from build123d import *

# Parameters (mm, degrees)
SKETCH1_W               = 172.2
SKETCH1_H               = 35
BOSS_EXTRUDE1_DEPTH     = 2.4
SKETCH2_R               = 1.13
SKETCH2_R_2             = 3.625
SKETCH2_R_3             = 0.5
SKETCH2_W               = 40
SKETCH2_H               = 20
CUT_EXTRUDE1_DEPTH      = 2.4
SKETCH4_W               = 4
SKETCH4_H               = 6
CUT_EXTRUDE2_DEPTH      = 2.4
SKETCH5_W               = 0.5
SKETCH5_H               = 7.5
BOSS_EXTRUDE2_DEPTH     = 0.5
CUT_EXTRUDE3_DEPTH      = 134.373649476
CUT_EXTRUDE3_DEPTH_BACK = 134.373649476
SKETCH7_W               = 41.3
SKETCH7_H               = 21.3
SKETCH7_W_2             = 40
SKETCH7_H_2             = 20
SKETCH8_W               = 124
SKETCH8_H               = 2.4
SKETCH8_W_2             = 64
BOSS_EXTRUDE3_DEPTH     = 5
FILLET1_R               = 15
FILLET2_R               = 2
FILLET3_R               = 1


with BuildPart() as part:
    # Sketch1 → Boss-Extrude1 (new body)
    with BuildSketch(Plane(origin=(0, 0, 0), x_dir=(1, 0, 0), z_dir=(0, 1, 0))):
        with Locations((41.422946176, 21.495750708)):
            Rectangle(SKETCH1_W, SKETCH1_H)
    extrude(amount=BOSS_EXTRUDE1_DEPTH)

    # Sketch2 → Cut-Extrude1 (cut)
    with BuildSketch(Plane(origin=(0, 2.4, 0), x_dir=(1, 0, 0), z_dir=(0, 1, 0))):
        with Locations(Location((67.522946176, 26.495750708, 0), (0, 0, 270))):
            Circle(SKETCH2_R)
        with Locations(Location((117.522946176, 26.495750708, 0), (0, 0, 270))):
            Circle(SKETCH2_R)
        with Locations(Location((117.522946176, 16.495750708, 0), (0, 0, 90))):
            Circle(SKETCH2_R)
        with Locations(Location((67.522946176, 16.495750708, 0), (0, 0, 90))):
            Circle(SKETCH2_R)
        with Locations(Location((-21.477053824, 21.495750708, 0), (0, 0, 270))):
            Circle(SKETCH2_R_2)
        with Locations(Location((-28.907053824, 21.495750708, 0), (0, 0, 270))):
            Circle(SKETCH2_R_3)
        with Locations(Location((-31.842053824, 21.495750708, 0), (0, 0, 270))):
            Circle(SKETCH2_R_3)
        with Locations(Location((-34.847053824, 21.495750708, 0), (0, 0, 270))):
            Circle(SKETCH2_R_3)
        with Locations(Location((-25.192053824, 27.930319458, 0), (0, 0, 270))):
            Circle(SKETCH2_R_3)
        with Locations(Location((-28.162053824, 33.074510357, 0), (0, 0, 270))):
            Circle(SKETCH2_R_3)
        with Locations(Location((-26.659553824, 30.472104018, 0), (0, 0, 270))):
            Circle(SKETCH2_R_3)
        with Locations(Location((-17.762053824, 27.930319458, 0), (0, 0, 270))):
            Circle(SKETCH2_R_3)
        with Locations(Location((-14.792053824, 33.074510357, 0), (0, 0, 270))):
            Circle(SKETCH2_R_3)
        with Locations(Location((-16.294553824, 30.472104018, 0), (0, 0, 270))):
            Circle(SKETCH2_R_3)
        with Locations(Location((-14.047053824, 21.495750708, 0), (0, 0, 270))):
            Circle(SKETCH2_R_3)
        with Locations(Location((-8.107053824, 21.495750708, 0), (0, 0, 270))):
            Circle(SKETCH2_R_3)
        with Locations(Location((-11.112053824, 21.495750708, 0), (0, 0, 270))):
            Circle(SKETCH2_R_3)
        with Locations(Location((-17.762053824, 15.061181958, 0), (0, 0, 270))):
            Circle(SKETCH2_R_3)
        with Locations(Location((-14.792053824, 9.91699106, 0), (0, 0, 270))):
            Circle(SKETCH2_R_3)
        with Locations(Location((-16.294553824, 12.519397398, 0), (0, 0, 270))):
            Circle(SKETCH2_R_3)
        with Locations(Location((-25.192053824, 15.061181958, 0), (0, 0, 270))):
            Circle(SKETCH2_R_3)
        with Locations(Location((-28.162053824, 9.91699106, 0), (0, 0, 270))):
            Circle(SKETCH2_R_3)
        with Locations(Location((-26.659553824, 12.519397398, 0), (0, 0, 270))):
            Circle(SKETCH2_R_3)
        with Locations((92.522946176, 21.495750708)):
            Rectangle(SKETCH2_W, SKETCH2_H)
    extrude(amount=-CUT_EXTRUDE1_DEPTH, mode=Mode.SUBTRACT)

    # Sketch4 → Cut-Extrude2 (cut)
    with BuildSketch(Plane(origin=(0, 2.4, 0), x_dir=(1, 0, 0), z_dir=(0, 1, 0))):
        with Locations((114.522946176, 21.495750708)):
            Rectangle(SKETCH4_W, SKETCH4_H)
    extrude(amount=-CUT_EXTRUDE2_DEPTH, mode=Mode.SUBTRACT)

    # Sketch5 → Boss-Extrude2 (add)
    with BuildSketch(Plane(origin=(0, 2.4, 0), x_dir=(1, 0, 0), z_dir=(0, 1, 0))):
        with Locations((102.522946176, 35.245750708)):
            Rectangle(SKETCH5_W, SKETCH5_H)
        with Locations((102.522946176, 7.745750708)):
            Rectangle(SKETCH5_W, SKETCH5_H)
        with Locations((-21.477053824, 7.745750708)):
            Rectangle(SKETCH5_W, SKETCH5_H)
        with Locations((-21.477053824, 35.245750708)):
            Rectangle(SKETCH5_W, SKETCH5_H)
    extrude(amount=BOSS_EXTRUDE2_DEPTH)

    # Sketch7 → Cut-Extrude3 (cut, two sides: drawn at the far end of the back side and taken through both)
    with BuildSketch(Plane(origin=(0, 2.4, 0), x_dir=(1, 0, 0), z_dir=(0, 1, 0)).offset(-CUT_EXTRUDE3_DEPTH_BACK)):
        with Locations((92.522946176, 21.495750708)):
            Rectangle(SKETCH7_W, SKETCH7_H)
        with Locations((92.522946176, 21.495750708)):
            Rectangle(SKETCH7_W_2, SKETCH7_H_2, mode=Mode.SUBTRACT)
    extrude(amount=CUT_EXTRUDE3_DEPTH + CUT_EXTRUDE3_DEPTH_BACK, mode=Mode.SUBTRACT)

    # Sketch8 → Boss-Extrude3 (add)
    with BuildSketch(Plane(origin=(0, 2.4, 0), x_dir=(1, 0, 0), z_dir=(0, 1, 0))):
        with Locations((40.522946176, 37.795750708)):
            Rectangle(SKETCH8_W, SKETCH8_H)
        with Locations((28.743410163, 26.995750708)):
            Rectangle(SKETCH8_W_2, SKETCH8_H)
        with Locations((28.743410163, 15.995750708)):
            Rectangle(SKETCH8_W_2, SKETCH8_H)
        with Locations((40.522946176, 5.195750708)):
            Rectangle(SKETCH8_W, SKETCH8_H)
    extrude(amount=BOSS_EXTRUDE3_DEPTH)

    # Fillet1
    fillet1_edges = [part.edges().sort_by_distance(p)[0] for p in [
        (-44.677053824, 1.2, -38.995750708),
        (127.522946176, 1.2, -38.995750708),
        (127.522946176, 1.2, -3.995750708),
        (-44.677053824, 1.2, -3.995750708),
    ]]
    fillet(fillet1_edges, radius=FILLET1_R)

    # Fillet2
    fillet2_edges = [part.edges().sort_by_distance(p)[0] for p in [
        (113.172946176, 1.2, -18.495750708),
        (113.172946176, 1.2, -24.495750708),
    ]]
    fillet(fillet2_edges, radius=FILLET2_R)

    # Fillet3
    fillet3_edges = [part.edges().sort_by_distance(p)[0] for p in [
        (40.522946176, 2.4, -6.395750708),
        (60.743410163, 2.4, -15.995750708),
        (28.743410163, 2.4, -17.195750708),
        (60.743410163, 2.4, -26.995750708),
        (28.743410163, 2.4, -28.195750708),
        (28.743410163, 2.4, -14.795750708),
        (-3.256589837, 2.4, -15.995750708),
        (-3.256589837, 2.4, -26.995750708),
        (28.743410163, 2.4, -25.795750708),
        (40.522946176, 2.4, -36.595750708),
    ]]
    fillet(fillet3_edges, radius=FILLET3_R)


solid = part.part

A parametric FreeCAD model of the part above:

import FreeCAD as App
import Part
import Sketcher


def edges_at(feature, points):
    """Names of the edges that pass closest to the given points."""
    edges = feature.Shape.Edges
    near = lambda p: min(range(len(edges)), key=lambda i: edges[i].distToShape(Part.Vertex(*p))[0])
    return sorted({f"Edge{near(p) + 1}" for p in points})


def add_polygon(sketch, points):
    """Adds a closed chain of lines whose ends are joined by coincident constraints."""
    first, n = sketch.GeometryCount, len(points)
    for a, b in zip(points, points[1:] + points[:1]):
        sketch.addGeometry(Part.LineSegment(App.Vector(*a, 0), App.Vector(*b, 0)), False)
    for i in range(n):
        sketch.addConstraint(Sketcher.Constraint("Coincident", first + i, 2, first + (i + 1) % n, 1))

doc = App.newDocument("Part")
body = doc.addObject("PartDesign::Body", "Body")

# Sketch on XZ plane
sketch1 = doc.addObject("Sketcher::SketchObject", "Sketch")
body.addObject(sketch1)
sketch1.AttachmentSupport = (doc.XZ_Plane, [""])
sketch1.MapMode = "FlatFace"
add_polygon(sketch1, [(-44.677054, -38.995751), (-44.677054, -3.995751), (127.522946, -3.995751), (127.522946, -38.995751)])  # lines 0-3
sketch1.addConstraint([
    Sketcher.Constraint("Vertical", 0),
    Sketcher.Constraint("Horizontal", 1),
    Sketcher.Constraint("Vertical", 2),
    Sketcher.Constraint("Horizontal", 3),
    Sketcher.Constraint("DistanceY", 0, 1, 0, 2, 35.0),
    Sketcher.Constraint("DistanceX", 1, 1, 1, 2, 172.2),
    Sketcher.Constraint("DistanceY", 0, 2, -1, 1, 3.995751),
    Sketcher.Constraint("DistanceX", 0, 2, -1, 1, 44.677054),
])
pad1 = doc.addObject("PartDesign::Pad", "Pad")
body.addObject(pad1)
pad1.Profile = sketch1
pad1.Length = 2.4
pad1.Reversed = True

# Sketch on XZ plane
sketch2 = doc.addObject("Sketcher::SketchObject", "Sketch001")
body.addObject(sketch2)
sketch2.AttachmentSupport = (doc.XZ_Plane, [""])
sketch2.MapMode = "FlatFace"
sketch2.AttachmentOffset = App.Placement(App.Vector(0, 0, -2.4), App.Rotation())
sketch2.addGeometry(Part.Circle(App.Vector(67.522946, -26.495751, 0), App.Vector(0, 0, 1), 1.13), False)  # 0
sketch2.addGeometry(Part.Circle(App.Vector(117.522946, -26.495751, 0), App.Vector(0, 0, 1), 1.13), False)  # 1
sketch2.addGeometry(Part.Circle(App.Vector(117.522946, -16.495751, 0), App.Vector(0, 0, 1), 1.13), False)  # 2
sketch2.addGeometry(Part.Circle(App.Vector(67.522946, -16.495751, 0), App.Vector(0, 0, 1), 1.13), False)  # 3
sketch2.addGeometry(Part.Circle(App.Vector(-21.477054, -21.495751, 0), App.Vector(0, 0, 1), 3.625), False)  # 4
sketch2.addGeometry(Part.Circle(App.Vector(-28.907054, -21.495751, 0), App.Vector(0, 0, 1), 0.5), False)  # 5
sketch2.addGeometry(Part.Circle(App.Vector(-31.842054, -21.495751, 0), App.Vector(0, 0, 1), 0.5), False)  # 6
sketch2.addGeometry(Part.Circle(App.Vector(-34.847054, -21.495751, 0), App.Vector(0, 0, 1), 0.5), False)  # 7
sketch2.addGeometry(Part.Circle(App.Vector(-25.192054, -27.930319, 0), App.Vector(0, 0, 1), 0.5), False)  # 8
sketch2.addGeometry(Part.Circle(App.Vector(-28.162054, -33.07451, 0), App.Vector(0, 0, 1), 0.5), False)  # 9
sketch2.addGeometry(Part.Circle(App.Vector(-26.659554, -30.472104, 0), App.Vector(0, 0, 1), 0.5), False)  # 10
sketch2.addGeometry(Part.Circle(App.Vector(-17.762054, -27.930319, 0), App.Vector(0, 0, 1), 0.5), False)  # 11
sketch2.addGeometry(Part.Circle(App.Vector(-14.792054, -33.07451, 0), App.Vector(0, 0, 1), 0.5), False)  # 12
sketch2.addGeometry(Part.Circle(App.Vector(-16.294554, -30.472104, 0), App.Vector(0, 0, 1), 0.5), False)  # 13
sketch2.addGeometry(Part.Circle(App.Vector(-14.047054, -21.495751, 0), App.Vector(0, 0, 1), 0.5), False)  # 14
sketch2.addGeometry(Part.Circle(App.Vector(-8.107054, -21.495751, 0), App.Vector(0, 0, 1), 0.5), False)  # 15
sketch2.addGeometry(Part.Circle(App.Vector(-11.112054, -21.495751, 0), App.Vector(0, 0, 1), 0.5), False)  # 16
sketch2.addGeometry(Part.Circle(App.Vector(-17.762054, -15.061182, 0), App.Vector(0, 0, 1), 0.5), False)  # 17
sketch2.addGeometry(Part.Circle(App.Vector(-14.792054, -9.916991, 0), App.Vector(0, 0, 1), 0.5), False)  # 18
sketch2.addGeometry(Part.Circle(App.Vector(-16.294554, -12.519397, 0), App.Vector(0, 0, 1), 0.5), False)  # 19
sketch2.addGeometry(Part.Circle(App.Vector(-25.192054, -15.061182, 0), App.Vector(0, 0, 1), 0.5), False)  # 20
sketch2.addGeometry(Part.Circle(App.Vector(-28.162054, -9.916991, 0), App.Vector(0, 0, 1), 0.5), False)  # 21
sketch2.addGeometry(Part.Circle(App.Vector(-26.659554, -12.519397, 0), App.Vector(0, 0, 1), 0.5), False)  # 22
add_polygon(sketch2, [(72.522946, -31.495751), (72.522946, -11.495751), (112.522946, -11.495751), (112.522946, -31.495751)])  # lines 23-26
sketch2.addConstraint([
    Sketcher.Constraint("Vertical", 23),
    Sketcher.Constraint("Horizontal", 24),
    Sketcher.Constraint("Vertical", 25),
    Sketcher.Constraint("Horizontal", 26),
    Sketcher.Constraint("Equal", 0, 1),
    Sketcher.Constraint("Equal", 1, 2),
    Sketcher.Constraint("Equal", 2, 3),
    Sketcher.Constraint("Equal", 5, 6),
    Sketcher.Constraint("Equal", 6, 7),
    Sketcher.Constraint("Equal", 7, 8),
    Sketcher.Constraint("Equal", 8, 9),
    Sketcher.Constraint("Equal", 9, 10),
    Sketcher.Constraint("Equal", 10, 11),
    Sketcher.Constraint("Equal", 11, 12),
    Sketcher.Constraint("Equal", 12, 13),
    Sketcher.Constraint("Equal", 13, 14),
    Sketcher.Constraint("Equal", 14, 15),
    Sketcher.Constraint("Equal", 15, 16),
    Sketcher.Constraint("Equal", 16, 17),
    Sketcher.Constraint("Equal", 17, 18),
    Sketcher.Constraint("Equal", 18, 19),
    Sketcher.Constraint("Equal", 19, 20),
    Sketcher.Constraint("Equal", 20, 21),
    Sketcher.Constraint("Equal", 21, 22),
    Sketcher.Constraint("Horizontal", 0, 3, 1, 3),
    Sketcher.Constraint("Horizontal", 2, 3, 3, 3),
    Sketcher.Constraint("Horizontal", 4, 3, 5, 3),
    Sketcher.Constraint("Horizontal", 5, 3, 6, 3),
    Sketcher.Constraint("Horizontal", 6, 3, 7, 3),
    Sketcher.Constraint("Horizontal", 8, 3, 11, 3),
    Sketcher.Constraint("Horizontal", 9, 3, 12, 3),
    Sketcher.Constraint("Horizontal", 10, 3, 13, 3),
    Sketcher.Constraint("Horizontal", 7, 3, 14, 3),
    Sketcher.Constraint("Horizontal", 14, 3, 15, 3),
    Sketcher.Constraint("Horizontal", 15, 3, 16, 3),
    Sketcher.Constraint("Horizontal", 17, 3, 20, 3),
    Sketcher.Constraint("Horizontal", 18, 3, 21, 3),
    Sketcher.Constraint("Horizontal", 19, 3, 22, 3),
    Sketcher.Constraint("Vertical", 1, 3, 2, 3),
    Sketcher.Constraint("Vertical", 0, 3, 3, 3),
    Sketcher.Constraint("Vertical", 11, 3, 17, 3),
    Sketcher.Constraint("Vertical", 12, 3, 18, 3),
    Sketcher.Constraint("Vertical", 13, 3, 19, 3),
    Sketcher.Constraint("Vertical", 8, 3, 20, 3),
    Sketcher.Constraint("Vertical", 9, 3, 21, 3),
    Sketcher.Constraint("Vertical", 10, 3, 22, 3),
    Sketcher.Constraint("Diameter", 5, 1.0),
    Sketcher.Constraint("Diameter", 0, 2.26),
    Sketcher.Constraint("Diameter", 4, 7.25),
    Sketcher.Constraint("DistanceX", 24, 1, 24, 2, 40.0),
    Sketcher.Constraint("DistanceY", 23, 1, 23, 2, 20.0),
    Sketcher.Constraint("DistanceX", 0, 3, 1, 3, 50.0),
    Sketcher.Constraint("DistanceY", 1, 3, 2, 3, 10.0),
    Sketcher.Constraint("DistanceX", 4, 3, 0, 3, 89.0),
    Sketcher.Constraint("DistanceY", 0, 3, 4, 3, 5.0),
    Sketcher.Constraint("DistanceX", 3, 3, 23, 2, 5.0),
    Sketcher.Constraint("DistanceY", 3, 3, 23, 2, 5.0),
    Sketcher.Constraint("DistanceX", 9, 3, 11, 3, 10.4),
    Sketcher.Constraint("DistanceX", 8, 3, 12, 3, 10.4),
    Sketcher.Constraint("DistanceX", 5, 3, 4, 3, 7.43),
    Sketcher.Constraint("DistanceX", 7, 3, 5, 3, 5.94),
    Sketcher.Constraint("DistanceX", 6, 3, 8, 3, 6.65),
    Sketcher.Constraint("DistanceX", 9, 3, 8, 3, 2.97),
    Sketcher.Constraint("DistanceX", 4, 3, 14, 3, 7.43),
    Sketcher.Constraint("DistanceX", 14, 3, 15, 3, 5.94),
    Sketcher.Constraint("DistanceX", 11, 3, 16, 3, 6.65),
    Sketcher.Constraint("DistanceX", 6, 3, 5, 3, 2.935),
    Sketcher.Constraint("DistanceX", 10, 3, 13, 3, 10.365),
    Sketcher.Constraint("DistanceX", 10, 3, 8, 3, 1.4675),
    Sketcher.Constraint("DistanceY", 0, 3, -1, 1, 26.495751),
    Sketcher.Constraint("DistanceY", 8, 3, -1, 1, 27.930319),
    Sketcher.Constraint("DistanceY", 9, 3, -1, 1, 33.07451),
    Sketcher.Constraint("DistanceY", 17, 3, -1, 1, 15.061182),
    Sketcher.Constraint("DistanceY", 18, 3, -1, 1, 9.916991),
    Sketcher.Constraint("DistanceX", -1, 1, 0, 3, 67.522946),
    Sketcher.Constraint("DistanceY", 10, 3, -1, 1, 30.472104),
    Sketcher.Constraint("DistanceY", 19, 3, -1, 1, 12.519397),
])
pocket1 = doc.addObject("PartDesign::Pocket", "Pocket")
body.addObject(pocket1)
pocket1.Profile = sketch2
pocket1.Length = 2.4
pocket1.Reversed = True

# Sketch on XZ plane
sketch3 = doc.addObject("Sketcher::SketchObject", "Sketch002")
body.addObject(sketch3)
sketch3.AttachmentSupport = (doc.XZ_Plane, [""])
sketch3.MapMode = "FlatFace"
sketch3.AttachmentOffset = App.Placement(App.Vector(0, 0, -2.4), App.Rotation())
add_polygon(sketch3, [(112.522946, -24.495751), (112.522946, -18.495751), (116.522946, -18.495751), (116.522946, -24.495751)])  # lines 0-3
sketch3.addConstraint([
    Sketcher.Constraint("Vertical", 0),
    Sketcher.Constraint("Horizontal", 1),
    Sketcher.Constraint("Vertical", 2),
    Sketcher.Constraint("Horizontal", 3),
    Sketcher.Constraint("DistanceX", 1, 1, 1, 2, 4.0),
    Sketcher.Constraint("DistanceY", 0, 1, 0, 2, 6.0),
    Sketcher.Constraint("DistanceY", 0, 2, -1, 1, 18.495751),
    Sketcher.Constraint("DistanceX", -1, 1, 0, 2, 112.522946),
])
pocket2 = doc.addObject("PartDesign::Pocket", "Pocket001")
body.addObject(pocket2)
pocket2.Profile = sketch3
pocket2.Length = 2.4
pocket2.Reversed = True

# Sketch on XZ plane
sketch4 = doc.addObject("Sketcher::SketchObject", "Sketch003")
body.addObject(sketch4)
sketch4.AttachmentSupport = (doc.XZ_Plane, [""])
sketch4.MapMode = "FlatFace"
sketch4.AttachmentOffset = App.Placement(App.Vector(0, 0, -2.4), App.Rotation())
add_polygon(sketch4, [(102.272946, -38.995751), (102.272946, -31.495751), (102.772946, -31.495751), (102.772946, -38.995751)])  # lines 0-3
add_polygon(sketch4, [(102.272946, -11.495751), (102.272946, -3.995751), (102.772946, -3.995751), (102.772946, -11.495751)])  # lines 4-7
add_polygon(sketch4, [(-21.727054, -11.495751), (-21.727054, -3.995751), (-21.227054, -3.995751), (-21.227054, -11.495751)])  # lines 8-11
add_polygon(sketch4, [(-21.727054, -38.995751), (-21.727054, -31.495751), (-21.227054, -31.495751), (-21.227054, -38.995751)])  # lines 12-15
sketch4.addConstraint([
    Sketcher.Constraint("Vertical", 0),
    Sketcher.Constraint("Horizontal", 1),
    Sketcher.Constraint("Vertical", 2),
    Sketcher.Constraint("Horizontal", 3),
    Sketcher.Constraint("Vertical", 4),
    Sketcher.Constraint("Horizontal", 5),
    Sketcher.Constraint("Vertical", 6),
    Sketcher.Constraint("Horizontal", 7),
    Sketcher.Constraint("Vertical", 8),
    Sketcher.Constraint("Horizontal", 9),
    Sketcher.Constraint("Vertical", 10),
    Sketcher.Constraint("Horizontal", 11),
    Sketcher.Constraint("Vertical", 12),
    Sketcher.Constraint("Horizontal", 13),
    Sketcher.Constraint("Vertical", 14),
    Sketcher.Constraint("Horizontal", 15),
    Sketcher.Constraint("Horizontal", 5, 2, 8, 2),
    Sketcher.Constraint("Horizontal", 7, 2, 10, 2),
    Sketcher.Constraint("Horizontal", 1, 2, 12, 2),
    Sketcher.Constraint("Horizontal", 3, 2, 14, 2),
    Sketcher.Constraint("Vertical", 3, 2, 4, 2),
    Sketcher.Constraint("Vertical", 2, 2, 5, 2),
    Sketcher.Constraint("Vertical", 11, 2, 12, 2),
    Sketcher.Constraint("Vertical", 10, 2, 13, 2),
    Sketcher.Constraint("Equal", 7, 9),
    Sketcher.Constraint("Equal", 2, 4),
    Sketcher.Constraint("DistanceX", 1, 1, 1, 2, 0.5),
    Sketcher.Constraint("DistanceY", 0, 1, 0, 2, 7.5),
    Sketcher.Constraint("DistanceY", 3, 2, 4, 2, 35.0),
    Sketcher.Constraint("DistanceX", 8, 2, 4, 2, 124.0),
    Sketcher.Constraint("DistanceY", 0, 2, -1, 1, 31.495751),
    Sketcher.Constraint("DistanceX", -1, 1, 0, 2, 102.272946),
])
pad2 = doc.addObject("PartDesign::Pad", "Pad001")
body.addObject(pad2)
pad2.Profile = sketch4
pad2.Length = 0.5
pad2.Reversed = True

# Sketch on XZ plane
sketch5 = doc.addObject("Sketcher::SketchObject", "Sketch004")
body.addObject(sketch5)
sketch5.AttachmentSupport = (doc.XZ_Plane, [""])
sketch5.MapMode = "FlatFace"
sketch5.AttachmentOffset = App.Placement(App.Vector(0, 0, -2.4), App.Rotation())
add_polygon(sketch5, [(71.872946, -32.145751), (71.872946, -10.845751), (113.172946, -10.845751), (113.172946, -32.145751)])  # lines 0-3
add_polygon(sketch5, [(112.522946, -11.495751), (72.522946, -11.495751), (72.522946, -31.495751), (112.522946, -31.495751)])  # lines 4-7
sketch5.addConstraint([
    Sketcher.Constraint("Vertical", 0),
    Sketcher.Constraint("Horizontal", 1),
    Sketcher.Constraint("Vertical", 2),
    Sketcher.Constraint("Horizontal", 3),
    Sketcher.Constraint("Horizontal", 4),
    Sketcher.Constraint("Vertical", 5),
    Sketcher.Constraint("Horizontal", 6),
    Sketcher.Constraint("Vertical", 7),
    Sketcher.Constraint("DistanceX", 4, 2, 4, 1, 40.0),
    Sketcher.Constraint("DistanceY", 5, 2, 5, 1, 20.0),
    Sketcher.Constraint("DistanceX", 1, 1, 1, 2, 41.3),
    Sketcher.Constraint("DistanceY", 0, 1, 0, 2, 21.3),
    Sketcher.Constraint("DistanceX", 0, 2, 4, 2, 0.65),
    Sketcher.Constraint("DistanceY", 4, 2, 0, 2, 0.65),
    Sketcher.Constraint("DistanceY", 0, 2, -1, 1, 10.845751),
    Sketcher.Constraint("DistanceX", -1, 1, 0, 2, 71.872946),
])
pocket3 = doc.addObject("PartDesign::Pocket", "Pocket002")
body.addObject(pocket3)
pocket3.Profile = sketch5
pocket3.Type = "ThroughAll"
pocket3.Midplane = True

# Sketch on XZ plane
sketch6 = doc.addObject("Sketcher::SketchObject", "Sketch005")
body.addObject(sketch6)
sketch6.AttachmentSupport = (doc.XZ_Plane, [""])
sketch6.MapMode = "FlatFace"
sketch6.AttachmentOffset = App.Placement(App.Vector(0, 0, -2.4), App.Rotation())
add_polygon(sketch6, [(-21.477054, -38.995751), (-21.477054, -36.595751), (102.522946, -36.595751), (102.522946, -38.995751)])  # lines 0-3
add_polygon(sketch6, [(-3.25659, -28.195751), (-3.25659, -25.795751), (60.74341, -25.795751), (60.74341, -28.195751)])  # lines 4-7
add_polygon(sketch6, [(-3.25659, -17.195751), (-3.25659, -14.795751), (60.74341, -14.795751), (60.74341, -17.195751)])  # lines 8-11
add_polygon(sketch6, [(-21.477054, -6.395751), (-21.477054, -3.995751), (102.522946, -3.995751), (102.522946, -6.395751)])  # lines 12-15
sketch6.addConstraint([
    Sketcher.Constraint("Vertical", 0),
    Sketcher.Constraint("Horizontal", 1),
    Sketcher.Constraint("Vertical", 2),
    Sketcher.Constraint("Horizontal", 3),
    Sketcher.Constraint("Vertical", 4),
    Sketcher.Constraint("Horizontal", 5),
    Sketcher.Constraint("Vertical", 6),
    Sketcher.Constraint("Horizontal", 7),
    Sketcher.Constraint("Vertical", 8),
    Sketcher.Constraint("Horizontal", 9),
    Sketcher.Constraint("Vertical", 10),
    Sketcher.Constraint("Horizontal", 11),
    Sketcher.Constraint("Vertical", 12),
    Sketcher.Constraint("Horizontal", 13),
    Sketcher.Constraint("Vertical", 14),
    Sketcher.Constraint("Horizontal", 15),
    Sketcher.Constraint("Vertical", 7, 2, 8, 2),
    Sketcher.Constraint("Vertical", 6, 2, 9, 2),
    Sketcher.Constraint("Vertical", 3, 2, 12, 2),
    Sketcher.Constraint("Vertical", 2, 2, 13, 2),
    Sketcher.Constraint("Equal", 2, 4),
    Sketcher.Constraint("Equal", 6, 8),
    Sketcher.Constraint("Equal", 10, 12),
    Sketcher.Constraint("DistanceX", 1, 1, 1, 2, 124.0),
    Sketcher.Constraint("DistanceX", 5, 1, 5, 2, 64.0),
    Sketcher.Constraint("DistanceY", 0, 1, 0, 2, 2.4),
    Sketcher.Constraint("DistanceY", 4, 2, 8, 2, 11.0),
    Sketcher.Constraint("DistanceY", 2, 2, 13, 2, 35.0),
    Sketcher.Constraint("DistanceY", 0, 2, 4, 2, 10.8),
    Sketcher.Constraint("DistanceY", 0, 2, -1, 1, 36.595751),
    Sketcher.Constraint("DistanceX", 4, 2, -1, 1, 3.25659),
    Sketcher.Constraint("DistanceX", 0, 2, -1, 1, 21.477054),
])
pad3 = doc.addObject("PartDesign::Pad", "Pad002")
body.addObject(pad3)
pad3.Profile = sketch6
pad3.Length = 5
pad3.Reversed = True
doc.recompute()

fillet = doc.addObject("PartDesign::Fillet", "Fillet")
body.addObject(fillet)
fillet.Base = (pad3, edges_at(pad3, [
    (-44.677, 1.2, -38.996),
    (127.523, 1.2, -38.996),
    (127.523, 1.2, -3.996),
    (-44.677, 1.2, -3.996),
]))
fillet.Radius = 15
doc.recompute()

fillet2 = doc.addObject("PartDesign::Fillet", "Fillet001")
body.addObject(fillet2)
fillet2.Base = (fillet, edges_at(fillet, [(113.173, 1.2, -18.496), (113.173, 1.2, -24.496)]))
fillet2.Radius = 2
doc.recompute()

fillet3 = doc.addObject("PartDesign::Fillet", "Fillet002")
body.addObject(fillet3)
fillet3.Base = (fillet2, edges_at(fillet2, [
    (40.523, 2.4, -6.396),
    (60.743, 2.4, -15.996),
    (28.743, 2.4, -17.196),
    (60.743, 2.4, -26.996),
    (28.743, 2.4, -28.196),
    (28.743, 2.4, -14.796),
    (-3.257, 2.4, -15.996),
    (-3.257, 2.4, -26.996),
    (28.743, 2.4, -25.796),
    (40.523, 2.4, -36.596),
]))
fillet3.Radius = 1

doc.recompute()
